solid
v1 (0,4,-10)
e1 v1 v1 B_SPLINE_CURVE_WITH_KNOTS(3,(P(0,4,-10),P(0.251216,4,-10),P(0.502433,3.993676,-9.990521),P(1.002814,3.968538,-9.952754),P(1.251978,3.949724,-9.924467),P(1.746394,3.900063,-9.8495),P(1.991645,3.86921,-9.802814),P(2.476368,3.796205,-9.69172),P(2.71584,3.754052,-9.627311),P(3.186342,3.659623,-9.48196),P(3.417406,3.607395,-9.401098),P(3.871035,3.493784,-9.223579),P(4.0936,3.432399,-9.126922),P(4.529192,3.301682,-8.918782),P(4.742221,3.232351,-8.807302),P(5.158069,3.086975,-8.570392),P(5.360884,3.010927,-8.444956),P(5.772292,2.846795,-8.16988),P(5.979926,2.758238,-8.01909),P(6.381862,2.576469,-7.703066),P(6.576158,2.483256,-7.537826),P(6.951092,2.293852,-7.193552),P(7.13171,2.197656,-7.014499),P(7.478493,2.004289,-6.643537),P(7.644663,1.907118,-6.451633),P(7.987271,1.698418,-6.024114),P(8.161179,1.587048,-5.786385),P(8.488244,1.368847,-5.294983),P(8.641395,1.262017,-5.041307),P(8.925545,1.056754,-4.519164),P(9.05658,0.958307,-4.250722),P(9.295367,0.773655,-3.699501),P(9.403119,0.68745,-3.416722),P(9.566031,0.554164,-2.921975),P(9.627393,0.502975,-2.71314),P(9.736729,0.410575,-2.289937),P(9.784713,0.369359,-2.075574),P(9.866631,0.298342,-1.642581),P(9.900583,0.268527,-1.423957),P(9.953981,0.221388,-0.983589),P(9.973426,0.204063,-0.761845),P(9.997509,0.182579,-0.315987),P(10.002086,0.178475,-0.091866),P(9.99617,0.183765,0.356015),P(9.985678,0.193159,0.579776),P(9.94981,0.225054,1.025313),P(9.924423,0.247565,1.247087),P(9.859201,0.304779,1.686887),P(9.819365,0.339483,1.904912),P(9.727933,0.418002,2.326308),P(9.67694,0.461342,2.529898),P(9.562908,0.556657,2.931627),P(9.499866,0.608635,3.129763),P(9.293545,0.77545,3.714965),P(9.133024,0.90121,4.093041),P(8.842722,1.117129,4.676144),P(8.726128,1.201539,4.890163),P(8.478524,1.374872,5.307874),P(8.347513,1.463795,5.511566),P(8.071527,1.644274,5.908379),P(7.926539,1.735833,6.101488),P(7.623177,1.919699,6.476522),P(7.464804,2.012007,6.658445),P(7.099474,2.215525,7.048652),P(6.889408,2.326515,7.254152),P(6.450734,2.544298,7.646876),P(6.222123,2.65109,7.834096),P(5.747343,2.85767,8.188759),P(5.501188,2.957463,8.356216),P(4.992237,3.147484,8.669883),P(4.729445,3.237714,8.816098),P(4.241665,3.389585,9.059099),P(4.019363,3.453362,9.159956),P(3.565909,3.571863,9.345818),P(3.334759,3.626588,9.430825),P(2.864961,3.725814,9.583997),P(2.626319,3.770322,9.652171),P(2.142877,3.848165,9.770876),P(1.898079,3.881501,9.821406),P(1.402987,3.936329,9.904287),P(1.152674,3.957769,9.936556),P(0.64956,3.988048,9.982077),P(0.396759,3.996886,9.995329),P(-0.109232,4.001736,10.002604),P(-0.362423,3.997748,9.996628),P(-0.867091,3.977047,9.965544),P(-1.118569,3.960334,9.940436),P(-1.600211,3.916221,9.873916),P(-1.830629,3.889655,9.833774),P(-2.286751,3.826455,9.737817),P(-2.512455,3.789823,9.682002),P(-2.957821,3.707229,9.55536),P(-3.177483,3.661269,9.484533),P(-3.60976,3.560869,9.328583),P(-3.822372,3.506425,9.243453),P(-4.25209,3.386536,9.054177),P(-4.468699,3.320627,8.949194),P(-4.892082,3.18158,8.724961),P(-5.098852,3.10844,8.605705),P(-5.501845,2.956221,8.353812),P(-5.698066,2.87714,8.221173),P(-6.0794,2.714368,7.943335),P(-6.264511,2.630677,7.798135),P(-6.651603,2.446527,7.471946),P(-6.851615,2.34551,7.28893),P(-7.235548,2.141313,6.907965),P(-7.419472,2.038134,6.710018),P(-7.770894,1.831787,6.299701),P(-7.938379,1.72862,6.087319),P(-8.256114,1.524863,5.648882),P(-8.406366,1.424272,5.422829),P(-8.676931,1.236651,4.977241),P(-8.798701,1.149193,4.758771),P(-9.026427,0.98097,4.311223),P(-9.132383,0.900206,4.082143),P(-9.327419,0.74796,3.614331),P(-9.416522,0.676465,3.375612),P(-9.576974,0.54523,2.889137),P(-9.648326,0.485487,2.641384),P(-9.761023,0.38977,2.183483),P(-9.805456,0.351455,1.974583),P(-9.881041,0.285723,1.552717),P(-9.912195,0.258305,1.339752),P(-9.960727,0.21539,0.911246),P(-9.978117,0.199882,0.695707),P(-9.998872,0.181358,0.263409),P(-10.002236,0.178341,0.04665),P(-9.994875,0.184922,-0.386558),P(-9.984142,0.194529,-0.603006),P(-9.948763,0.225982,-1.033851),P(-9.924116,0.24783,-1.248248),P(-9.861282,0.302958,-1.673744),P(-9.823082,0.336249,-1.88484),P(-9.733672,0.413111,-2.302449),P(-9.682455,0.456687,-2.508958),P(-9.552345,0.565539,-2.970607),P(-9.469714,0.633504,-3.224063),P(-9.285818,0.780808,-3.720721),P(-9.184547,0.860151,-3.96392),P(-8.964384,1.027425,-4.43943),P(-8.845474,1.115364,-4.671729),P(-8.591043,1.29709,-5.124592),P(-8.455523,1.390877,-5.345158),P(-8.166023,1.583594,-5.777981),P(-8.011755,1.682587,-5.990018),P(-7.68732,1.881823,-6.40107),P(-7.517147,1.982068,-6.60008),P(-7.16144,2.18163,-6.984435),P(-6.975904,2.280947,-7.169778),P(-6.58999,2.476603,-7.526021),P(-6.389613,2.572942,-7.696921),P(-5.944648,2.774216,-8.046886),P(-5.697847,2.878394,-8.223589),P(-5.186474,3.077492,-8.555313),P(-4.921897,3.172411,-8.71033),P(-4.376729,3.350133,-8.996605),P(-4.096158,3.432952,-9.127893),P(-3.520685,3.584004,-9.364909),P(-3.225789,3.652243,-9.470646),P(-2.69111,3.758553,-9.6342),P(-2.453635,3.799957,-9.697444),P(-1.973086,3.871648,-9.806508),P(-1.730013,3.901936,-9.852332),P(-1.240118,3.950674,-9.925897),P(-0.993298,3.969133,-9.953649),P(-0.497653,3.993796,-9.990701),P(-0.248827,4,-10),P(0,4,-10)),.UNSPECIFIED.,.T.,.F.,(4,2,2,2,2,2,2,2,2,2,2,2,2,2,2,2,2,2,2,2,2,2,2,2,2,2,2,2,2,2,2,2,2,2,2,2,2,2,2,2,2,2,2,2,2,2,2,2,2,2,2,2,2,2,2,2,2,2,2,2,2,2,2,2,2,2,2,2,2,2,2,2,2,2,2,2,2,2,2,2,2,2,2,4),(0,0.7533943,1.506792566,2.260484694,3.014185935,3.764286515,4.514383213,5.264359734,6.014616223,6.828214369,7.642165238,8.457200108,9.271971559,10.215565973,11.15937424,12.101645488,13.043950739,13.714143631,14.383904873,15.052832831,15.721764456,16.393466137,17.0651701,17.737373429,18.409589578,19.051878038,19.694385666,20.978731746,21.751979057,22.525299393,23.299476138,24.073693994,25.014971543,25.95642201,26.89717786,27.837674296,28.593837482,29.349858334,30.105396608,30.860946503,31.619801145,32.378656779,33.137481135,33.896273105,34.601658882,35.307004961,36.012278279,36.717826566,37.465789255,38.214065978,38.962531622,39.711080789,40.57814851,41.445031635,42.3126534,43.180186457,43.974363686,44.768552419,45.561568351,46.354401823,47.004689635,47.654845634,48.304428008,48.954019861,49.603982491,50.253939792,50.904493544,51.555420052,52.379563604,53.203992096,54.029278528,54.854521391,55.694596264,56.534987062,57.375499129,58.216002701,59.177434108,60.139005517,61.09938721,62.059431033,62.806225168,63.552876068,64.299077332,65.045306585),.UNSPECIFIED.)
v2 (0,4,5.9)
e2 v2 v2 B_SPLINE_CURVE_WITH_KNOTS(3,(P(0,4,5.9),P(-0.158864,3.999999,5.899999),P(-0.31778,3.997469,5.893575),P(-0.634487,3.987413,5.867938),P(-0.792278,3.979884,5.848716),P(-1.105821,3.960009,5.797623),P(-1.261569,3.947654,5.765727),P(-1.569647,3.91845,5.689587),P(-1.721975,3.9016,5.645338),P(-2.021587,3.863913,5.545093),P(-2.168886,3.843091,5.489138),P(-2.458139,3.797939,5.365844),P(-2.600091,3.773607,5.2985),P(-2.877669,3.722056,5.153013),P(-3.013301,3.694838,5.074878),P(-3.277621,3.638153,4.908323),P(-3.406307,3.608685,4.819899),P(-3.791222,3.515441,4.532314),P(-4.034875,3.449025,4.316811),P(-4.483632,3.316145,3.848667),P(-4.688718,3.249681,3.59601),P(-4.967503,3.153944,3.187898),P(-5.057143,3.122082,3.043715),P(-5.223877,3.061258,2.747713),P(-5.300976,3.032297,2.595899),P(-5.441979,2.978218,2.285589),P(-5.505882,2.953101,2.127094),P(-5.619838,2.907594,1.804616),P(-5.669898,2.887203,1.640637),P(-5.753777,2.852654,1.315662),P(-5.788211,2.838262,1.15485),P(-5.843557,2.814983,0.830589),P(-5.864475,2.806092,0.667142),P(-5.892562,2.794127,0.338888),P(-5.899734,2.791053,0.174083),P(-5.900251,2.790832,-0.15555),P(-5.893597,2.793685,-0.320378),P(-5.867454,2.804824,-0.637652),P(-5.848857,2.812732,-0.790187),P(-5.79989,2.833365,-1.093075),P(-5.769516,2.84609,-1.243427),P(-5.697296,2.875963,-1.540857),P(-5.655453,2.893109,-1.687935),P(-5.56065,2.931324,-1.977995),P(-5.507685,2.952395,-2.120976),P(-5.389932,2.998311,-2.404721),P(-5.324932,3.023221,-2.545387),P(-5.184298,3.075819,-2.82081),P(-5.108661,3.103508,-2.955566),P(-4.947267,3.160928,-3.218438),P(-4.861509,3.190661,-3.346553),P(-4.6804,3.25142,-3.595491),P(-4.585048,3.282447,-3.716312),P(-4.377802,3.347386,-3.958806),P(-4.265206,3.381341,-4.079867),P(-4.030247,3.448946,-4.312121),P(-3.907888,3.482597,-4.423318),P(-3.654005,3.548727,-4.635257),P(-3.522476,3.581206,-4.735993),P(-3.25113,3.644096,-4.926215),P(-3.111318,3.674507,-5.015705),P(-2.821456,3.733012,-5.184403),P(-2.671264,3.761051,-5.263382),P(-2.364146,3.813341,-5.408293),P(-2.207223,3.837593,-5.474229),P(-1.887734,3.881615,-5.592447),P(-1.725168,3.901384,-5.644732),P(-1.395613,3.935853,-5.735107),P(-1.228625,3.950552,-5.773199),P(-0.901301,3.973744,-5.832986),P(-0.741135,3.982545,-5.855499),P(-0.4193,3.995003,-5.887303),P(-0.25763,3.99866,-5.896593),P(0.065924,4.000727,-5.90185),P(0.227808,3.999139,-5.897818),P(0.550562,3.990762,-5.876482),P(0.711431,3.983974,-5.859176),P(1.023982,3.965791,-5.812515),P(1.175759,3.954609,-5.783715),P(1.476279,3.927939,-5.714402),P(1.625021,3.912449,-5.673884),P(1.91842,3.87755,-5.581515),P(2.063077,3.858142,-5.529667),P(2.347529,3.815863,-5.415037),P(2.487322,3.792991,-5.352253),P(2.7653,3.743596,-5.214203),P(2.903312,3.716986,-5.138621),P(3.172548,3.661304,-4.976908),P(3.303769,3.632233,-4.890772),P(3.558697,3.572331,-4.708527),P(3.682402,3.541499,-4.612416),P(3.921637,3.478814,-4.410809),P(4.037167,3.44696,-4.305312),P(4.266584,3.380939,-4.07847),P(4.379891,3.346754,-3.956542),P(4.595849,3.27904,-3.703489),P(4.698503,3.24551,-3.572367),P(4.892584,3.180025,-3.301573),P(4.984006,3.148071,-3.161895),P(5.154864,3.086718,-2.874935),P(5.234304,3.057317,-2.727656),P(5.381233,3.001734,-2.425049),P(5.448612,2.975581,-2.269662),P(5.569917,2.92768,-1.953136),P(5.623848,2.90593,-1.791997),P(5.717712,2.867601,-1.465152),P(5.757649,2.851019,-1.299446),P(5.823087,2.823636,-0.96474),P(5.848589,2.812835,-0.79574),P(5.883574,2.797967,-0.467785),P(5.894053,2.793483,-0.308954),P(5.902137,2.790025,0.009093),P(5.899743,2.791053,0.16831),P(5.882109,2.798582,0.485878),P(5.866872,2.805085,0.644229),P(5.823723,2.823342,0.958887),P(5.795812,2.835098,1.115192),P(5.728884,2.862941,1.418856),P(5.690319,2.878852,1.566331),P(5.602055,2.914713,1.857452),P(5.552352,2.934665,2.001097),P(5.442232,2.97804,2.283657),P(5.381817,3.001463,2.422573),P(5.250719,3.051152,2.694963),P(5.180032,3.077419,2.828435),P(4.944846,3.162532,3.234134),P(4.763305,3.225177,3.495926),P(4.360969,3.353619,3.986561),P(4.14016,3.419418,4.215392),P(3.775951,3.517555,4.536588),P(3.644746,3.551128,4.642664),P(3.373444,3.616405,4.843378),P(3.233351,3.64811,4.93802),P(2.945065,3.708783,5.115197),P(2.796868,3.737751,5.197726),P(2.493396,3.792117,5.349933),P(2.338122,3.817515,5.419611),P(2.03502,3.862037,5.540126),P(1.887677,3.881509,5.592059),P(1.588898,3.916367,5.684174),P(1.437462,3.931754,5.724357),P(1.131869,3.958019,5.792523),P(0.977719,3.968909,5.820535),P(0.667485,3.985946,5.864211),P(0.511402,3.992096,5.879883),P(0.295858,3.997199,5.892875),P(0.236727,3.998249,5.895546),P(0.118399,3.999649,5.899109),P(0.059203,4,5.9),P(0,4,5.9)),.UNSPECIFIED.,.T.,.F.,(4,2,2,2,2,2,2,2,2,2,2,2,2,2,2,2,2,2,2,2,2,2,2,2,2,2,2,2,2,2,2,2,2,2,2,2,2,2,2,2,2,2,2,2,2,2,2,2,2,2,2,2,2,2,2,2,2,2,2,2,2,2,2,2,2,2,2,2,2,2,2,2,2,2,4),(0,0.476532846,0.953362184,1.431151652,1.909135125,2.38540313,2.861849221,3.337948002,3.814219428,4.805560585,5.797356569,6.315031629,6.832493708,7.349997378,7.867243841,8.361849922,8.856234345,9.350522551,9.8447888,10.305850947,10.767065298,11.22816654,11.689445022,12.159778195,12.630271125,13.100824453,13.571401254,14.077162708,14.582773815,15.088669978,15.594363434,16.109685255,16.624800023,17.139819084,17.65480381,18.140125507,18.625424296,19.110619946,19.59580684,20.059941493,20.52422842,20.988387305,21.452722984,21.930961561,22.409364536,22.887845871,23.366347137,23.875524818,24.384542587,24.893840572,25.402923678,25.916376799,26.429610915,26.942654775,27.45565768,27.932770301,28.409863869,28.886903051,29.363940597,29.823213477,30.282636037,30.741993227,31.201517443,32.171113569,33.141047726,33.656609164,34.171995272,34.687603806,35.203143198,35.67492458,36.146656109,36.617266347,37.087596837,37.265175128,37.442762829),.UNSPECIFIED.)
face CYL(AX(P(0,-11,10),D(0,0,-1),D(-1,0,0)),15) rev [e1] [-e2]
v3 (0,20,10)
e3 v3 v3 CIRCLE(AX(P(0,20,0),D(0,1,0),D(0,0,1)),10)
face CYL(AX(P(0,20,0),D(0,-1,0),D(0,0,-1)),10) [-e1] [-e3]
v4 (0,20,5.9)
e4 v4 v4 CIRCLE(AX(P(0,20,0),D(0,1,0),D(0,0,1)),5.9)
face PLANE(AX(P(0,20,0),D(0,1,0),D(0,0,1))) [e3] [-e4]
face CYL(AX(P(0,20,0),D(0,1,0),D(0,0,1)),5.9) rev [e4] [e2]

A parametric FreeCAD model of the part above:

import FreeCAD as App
import Part
import Sketcher
from FreeCAD import Vector
Q = App.Units.Quantity

doc = App.newDocument("Part")
body = doc.addObject("PartDesign::Body", "Body")

sketch1 = body.newObject("Sketcher::SketchObject", "Sketch")
sketch1.AttachmentSupport = (doc.getObject("XZ_Plane"), [""])
sketch1.MapMode = "FlatFace"
sketch1.addGeometry(Part.Circle(Vector(0, 0, 0), Vector(0, 0, 1), 10), False)
sketch1.addConstraint([
    Sketcher.Constraint("Coincident", 0, 3, -1, 1),
    Sketcher.Constraint("Diameter", 0, Q("20 mm")),
])
pad1 = body.newObject("PartDesign::Pad", "Pad")
pad1.Profile = sketch1
pad1.Length = 20
pad1.Reversed = True

sketch2 = body.newObject("Sketcher::SketchObject", "Sketch001")
sketch2.AttachmentSupport = (doc.getObject("XY_Plane"), [""])
sketch2.MapMode = "FlatFace"
sketch2.addGeometry(Part.Circle(Vector(0, -11, 0), Vector(0, 0, 1), 15), False)
sketch2.addConstraint([
    Sketcher.Constraint("PointOnObject", 0, 3, -2),
    Sketcher.Constraint("Diameter", 0, Q("30 mm")),
    Sketcher.Constraint("DistanceY", 0, 3, -1, 1, Q("11 mm")),
])
pocket1 = body.newObject("PartDesign::Pocket", "Pocket")
pocket1.Profile = sketch2
pocket1.Type = "ThroughAll"
pocket1.Midplane = True

sketch3 = body.newObject("Sketcher::SketchObject", "Sketch002")
sketch3.AttachmentSupport = (doc.getObject("XZ_Plane"), [""])
sketch3.MapMode = "FlatFace"
sketch3.AttachmentOffset = App.Placement(Vector(0, 0, -20), App.Rotation())
sketch3.addGeometry(Part.Circle(Vector(0, 0, 0), Vector(0, 0, 1), 6), False)
sketch3.addConstraint([
    Sketcher.Constraint("Coincident", 0, 3, -1, 1),
    Sketcher.Constraint("Diameter", 0, Q("11.8 mm")),
])
doc.recompute()
hole = body.newObject("PartDesign::Hole", "Hole")
hole.Profile = sketch3
hole.ThreadType = "None"
hole.Diameter = 11.8
hole.DepthType = "ThroughAll"
hole.Reversed = True

doc.recompute()
